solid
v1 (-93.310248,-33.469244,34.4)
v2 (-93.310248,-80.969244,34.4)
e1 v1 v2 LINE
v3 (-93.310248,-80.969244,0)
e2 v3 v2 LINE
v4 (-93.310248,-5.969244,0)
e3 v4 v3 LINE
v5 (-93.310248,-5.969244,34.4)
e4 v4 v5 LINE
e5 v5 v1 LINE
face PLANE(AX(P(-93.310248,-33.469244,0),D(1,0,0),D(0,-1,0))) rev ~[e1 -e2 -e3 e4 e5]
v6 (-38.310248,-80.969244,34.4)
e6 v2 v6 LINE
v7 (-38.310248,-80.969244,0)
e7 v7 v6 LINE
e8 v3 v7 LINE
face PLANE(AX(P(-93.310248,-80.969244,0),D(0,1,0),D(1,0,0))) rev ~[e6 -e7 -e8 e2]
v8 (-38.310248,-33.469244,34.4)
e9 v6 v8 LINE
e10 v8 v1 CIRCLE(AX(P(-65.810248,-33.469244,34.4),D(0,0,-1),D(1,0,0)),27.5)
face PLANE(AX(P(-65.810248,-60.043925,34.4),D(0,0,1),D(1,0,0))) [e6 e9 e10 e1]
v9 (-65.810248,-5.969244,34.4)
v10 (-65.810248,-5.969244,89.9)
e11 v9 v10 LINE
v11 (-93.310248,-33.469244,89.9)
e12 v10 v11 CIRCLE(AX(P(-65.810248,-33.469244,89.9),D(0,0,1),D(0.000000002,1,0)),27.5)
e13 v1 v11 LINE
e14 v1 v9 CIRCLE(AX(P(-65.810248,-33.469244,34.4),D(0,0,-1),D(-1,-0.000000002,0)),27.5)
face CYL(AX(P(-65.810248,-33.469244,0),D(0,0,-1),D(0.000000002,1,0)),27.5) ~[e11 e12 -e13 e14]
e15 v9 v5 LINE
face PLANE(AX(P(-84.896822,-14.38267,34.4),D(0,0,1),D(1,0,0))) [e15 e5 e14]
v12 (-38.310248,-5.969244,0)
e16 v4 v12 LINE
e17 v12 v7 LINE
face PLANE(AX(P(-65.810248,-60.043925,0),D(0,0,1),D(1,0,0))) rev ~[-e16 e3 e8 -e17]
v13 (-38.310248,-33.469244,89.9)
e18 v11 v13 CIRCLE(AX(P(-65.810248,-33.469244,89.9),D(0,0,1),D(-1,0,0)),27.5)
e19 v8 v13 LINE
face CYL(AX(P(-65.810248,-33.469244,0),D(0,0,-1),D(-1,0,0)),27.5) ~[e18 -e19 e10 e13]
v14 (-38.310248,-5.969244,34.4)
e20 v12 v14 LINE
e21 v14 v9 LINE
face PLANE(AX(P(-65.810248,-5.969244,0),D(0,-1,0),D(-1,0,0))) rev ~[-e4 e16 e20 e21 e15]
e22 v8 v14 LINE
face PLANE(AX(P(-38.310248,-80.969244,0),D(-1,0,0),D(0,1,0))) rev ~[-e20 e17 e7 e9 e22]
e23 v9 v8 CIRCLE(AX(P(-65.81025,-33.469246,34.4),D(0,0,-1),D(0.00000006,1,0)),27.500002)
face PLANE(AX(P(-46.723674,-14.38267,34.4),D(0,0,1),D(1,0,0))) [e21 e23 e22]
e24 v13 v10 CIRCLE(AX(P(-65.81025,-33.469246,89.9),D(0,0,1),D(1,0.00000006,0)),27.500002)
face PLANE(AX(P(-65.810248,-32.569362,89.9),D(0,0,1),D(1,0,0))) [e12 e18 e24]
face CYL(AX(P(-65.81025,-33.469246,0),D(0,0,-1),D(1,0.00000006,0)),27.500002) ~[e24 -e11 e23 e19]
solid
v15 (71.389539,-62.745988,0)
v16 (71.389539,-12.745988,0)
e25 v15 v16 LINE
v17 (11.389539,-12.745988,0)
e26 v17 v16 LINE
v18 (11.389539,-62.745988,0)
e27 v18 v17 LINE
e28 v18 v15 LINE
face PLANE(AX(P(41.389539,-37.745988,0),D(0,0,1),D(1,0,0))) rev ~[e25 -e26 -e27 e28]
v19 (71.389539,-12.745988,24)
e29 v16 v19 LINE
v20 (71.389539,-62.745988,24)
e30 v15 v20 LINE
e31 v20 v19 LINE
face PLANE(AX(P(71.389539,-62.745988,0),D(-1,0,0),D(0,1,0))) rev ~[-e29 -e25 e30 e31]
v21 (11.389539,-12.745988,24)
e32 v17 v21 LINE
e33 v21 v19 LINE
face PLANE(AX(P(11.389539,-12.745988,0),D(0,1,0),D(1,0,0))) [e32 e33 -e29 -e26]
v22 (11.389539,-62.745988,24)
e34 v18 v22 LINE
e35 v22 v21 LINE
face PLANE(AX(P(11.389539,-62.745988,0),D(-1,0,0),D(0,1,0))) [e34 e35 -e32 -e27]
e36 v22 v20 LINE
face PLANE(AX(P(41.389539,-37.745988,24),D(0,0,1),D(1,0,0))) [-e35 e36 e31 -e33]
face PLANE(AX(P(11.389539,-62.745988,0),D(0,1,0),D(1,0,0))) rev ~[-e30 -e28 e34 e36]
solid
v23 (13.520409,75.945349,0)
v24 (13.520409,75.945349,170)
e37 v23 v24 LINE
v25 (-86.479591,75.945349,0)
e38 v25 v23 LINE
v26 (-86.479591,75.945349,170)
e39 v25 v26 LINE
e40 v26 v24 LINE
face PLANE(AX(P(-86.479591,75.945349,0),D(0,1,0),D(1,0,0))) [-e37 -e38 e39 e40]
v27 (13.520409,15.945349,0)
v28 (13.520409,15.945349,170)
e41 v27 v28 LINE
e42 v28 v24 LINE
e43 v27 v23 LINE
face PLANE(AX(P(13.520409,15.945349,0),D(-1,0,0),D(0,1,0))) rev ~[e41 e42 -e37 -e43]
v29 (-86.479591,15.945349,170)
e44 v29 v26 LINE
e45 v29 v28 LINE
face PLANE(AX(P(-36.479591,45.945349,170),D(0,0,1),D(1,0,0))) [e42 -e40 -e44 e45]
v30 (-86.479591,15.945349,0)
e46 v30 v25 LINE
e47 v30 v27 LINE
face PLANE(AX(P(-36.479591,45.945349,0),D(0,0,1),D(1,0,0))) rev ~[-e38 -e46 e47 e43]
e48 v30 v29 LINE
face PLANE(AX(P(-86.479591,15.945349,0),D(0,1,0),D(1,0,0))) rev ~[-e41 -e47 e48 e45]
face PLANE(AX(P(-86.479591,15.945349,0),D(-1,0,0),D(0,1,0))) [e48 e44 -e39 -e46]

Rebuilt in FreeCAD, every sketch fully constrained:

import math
import FreeCAD as App
import Part
import Sketcher

V = App.Vector


def add_polygon(sketch, points):
    """Adds a closed chain of lines whose ends are joined by coincident constraints."""
    first, n = sketch.GeometryCount, len(points)
    for a, b in zip(points, points[1:] + points[:1]):
        sketch.addGeometry(Part.LineSegment(App.Vector(*a, 0), App.Vector(*b, 0)), False)
    for i in range(n):
        sketch.addConstraint(Sketcher.Constraint("Coincident", first + i, 2, first + (i + 1) % n, 1))

doc = App.newDocument("Part")
body = doc.addObject("PartDesign::Body", "Body")

# Sketch on XY plane
sketch1 = body.newObject("Sketcher::SketchObject", "Sketch")
sketch1.AttachmentSupport = (doc.getObject("XY_Plane"), [""])
sketch1.MapMode = "FlatFace"
add_polygon(sketch1, [(-86, 76), (-86, 16), (14, 16), (14, 76)])  # lines 0-3
sketch1.addConstraint(Sketcher.Constraint("Vertical", 0))
sketch1.addConstraint(Sketcher.Constraint("Horizontal", 1))
sketch1.addConstraint(Sketcher.Constraint("Vertical", 2))
sketch1.addConstraint(Sketcher.Constraint("Horizontal", 3))
sketch1.addConstraint(Sketcher.Constraint("DistanceX", 1, 1, 1, 2, 100.0))
sketch1.addConstraint(Sketcher.Constraint("DistanceY", 0, 2, 0, 1, 60.0))
sketch1.addConstraint(Sketcher.Constraint("DistanceX", 0, 2, -1, 1, 86.479591))
sketch1.addConstraint(Sketcher.Constraint("DistanceY", -1, 1, 0, 2, 15.945349))
pad1 = body.newObject("PartDesign::Pad", "Pad")
pad1.Profile = sketch1
pad1.Length = 170
body2 = doc.addObject("PartDesign::Body", "Body001")

# Sketch on XY plane
sketch2 = body2.newObject("Sketcher::SketchObject", "Sketch001")
sketch2.AttachmentSupport = (doc.getObject("XY_Plane001"), [""])
sketch2.MapMode = "FlatFace"
sketch2.addGeometry(Part.ArcOfCircle(Part.Circle(V(-66, -33, 0), V(0, 0, 1), 28), math.radians(0), math.radians(90)), False)
sketch2.addGeometry(Part.ArcOfCircle(Part.Circle(V(-66, -33, 0), V(0, 0, 1), 27), math.radians(90), math.radians(180)), False)
sketch2.addGeometry(Part.ArcOfCircle(Part.Circle(V(-66, -33, 0), V(0, 0, 1), 28), math.radians(180), math.radians(360)), False)
sketch2.addConstraint(Sketcher.Constraint("Tangent", 0, 2, 1, 1))
sketch2.addConstraint(Sketcher.Constraint("Tangent", 1, 2, 2, 1))
sketch2.addConstraint(Sketcher.Constraint("Tangent", 2, 2, 0, 1))
sketch2.addConstraint(Sketcher.Constraint("Horizontal", 2, 3, 1, 2))
sketch2.addConstraint(Sketcher.Constraint("Horizontal", 1, 2, 2, 2))
sketch2.addConstraint(Sketcher.Constraint("Vertical", 2, 3, 0, 2))
sketch2.addConstraint(Sketcher.Constraint("Radius", 0, 27.500002))
sketch2.addConstraint(Sketcher.Constraint("DistanceX", 0, 3, -1, 1, 65.81025))
sketch2.addConstraint(Sketcher.Constraint("DistanceY", 0, 3, -1, 1, 33.469246))
pad2 = body2.newObject("PartDesign::Pad", "Pad001")
pad2.Profile = sketch2
pad2.Length = 89.9

# Sketch on XY plane
sketch3 = body2.newObject("Sketcher::SketchObject", "Sketch002")
sketch3.AttachmentSupport = (doc.getObject("XY_Plane001"), [""])
sketch3.MapMode = "FlatFace"
sketch3.addGeometry(Part.ArcOfCircle(Part.Circle(V(-66, -33, 0), V(0, 0, 1), 28), math.radians(180), math.radians(360)), False)
sketch3.addGeometry(Part.LineSegment(V(-93, -33, 0), V(-93, -81, 0)), False)
sketch3.addGeometry(Part.LineSegment(V(-93, -81, 0), V(-38, -81, 0)), False)
sketch3.addGeometry(Part.LineSegment(V(-38, -81, 0), V(-38, -33, 0)), False)
sketch3.addGeometry(Part.LineSegment(V(-66, -6, 0), V(-93, -6, 0)), False)
sketch3.addGeometry(Part.LineSegment(V(-93, -6, 0), V(-93, -33, 0)), False)
sketch3.addGeometry(Part.ArcOfCircle(Part.Circle(V(-66, -33, 0), V(0, 0, 1), 27), math.radians(90), math.radians(180)), False)
sketch3.addGeometry(Part.LineSegment(V(-38, -6, 0), V(-66, -6, 0)), False)
sketch3.addGeometry(Part.ArcOfCircle(Part.Circle(V(-66, -33, 0), V(0, 0, 1), 28), math.radians(0), math.radians(90)), False)
sketch3.addGeometry(Part.LineSegment(V(-38, -33, 0), V(-38, -6, 0)), False)
sketch3.addConstraint(Sketcher.Constraint("Tangent", 0, 1, 1, 1))
sketch3.addConstraint(Sketcher.Constraint("Coincident", 1, 2, 2, 1))
sketch3.addConstraint(Sketcher.Constraint("Coincident", 2, 2, 3, 1))
sketch3.addConstraint(Sketcher.Constraint("Tangent", 3, 2, 0, 2))
sketch3.addConstraint(Sketcher.Constraint("Coincident", 4, 2, 5, 1))
sketch3.addConstraint(Sketcher.Constraint("Tangent", 5, 2, 6, 2))
sketch3.addConstraint(Sketcher.Constraint("Tangent", 6, 1, 4, 1))
sketch3.addConstraint(Sketcher.Constraint("Tangent", 7, 2, 8, 2))
sketch3.addConstraint(Sketcher.Constraint("Tangent", 8, 1, 9, 1))
sketch3.addConstraint(Sketcher.Constraint("Coincident", 9, 2, 7, 1))
sketch3.addConstraint(Sketcher.Constraint("Vertical", 1))
sketch3.addConstraint(Sketcher.Constraint("Horizontal", 2))
sketch3.addConstraint(Sketcher.Constraint("Vertical", 3))
sketch3.addConstraint(Sketcher.Constraint("Horizontal", 4))
sketch3.addConstraint(Sketcher.Constraint("Vertical", 5))
sketch3.addConstraint(Sketcher.Constraint("Horizontal", 7))
sketch3.addConstraint(Sketcher.Constraint("Vertical", 9))
sketch3.addConstraint(Sketcher.Constraint("Coincident", 6, 3, 0, 3))
sketch3.addConstraint(Sketcher.Constraint("Coincident", 8, 3, 0, 3))
sketch3.addConstraint(Sketcher.Constraint("Equal", 0, 6))
sketch3.addConstraint(Sketcher.Constraint("Equal", 6, 8))
sketch3.addConstraint(Sketcher.Constraint("Radius", 0, 27.5))
sketch3.addConstraint(Sketcher.Constraint("DistanceY", 1, 2, 1, 1, 47.5))
sketch3.addConstraint(Sketcher.Constraint("DistanceX", 0, 3, -1, 1, 65.810248))
sketch3.addConstraint(Sketcher.Constraint("DistanceY", 0, 3, -1, 1, 33.469244))
pad3 = body2.newObject("PartDesign::Pad", "Pad002")
pad3.Profile = sketch3
pad3.Length = 34.4
body3 = doc.addObject("PartDesign::Body", "Body002")

# Sketch on XY plane
sketch4 = body3.newObject("Sketcher::SketchObject", "Sketch003")
sketch4.AttachmentSupport = (doc.getObject("XY_Plane002"), [""])
sketch4.MapMode = "FlatFace"
add_polygon(sketch4, [(11, -13), (11, -63), (71, -63), (71, -13)])  # lines 0-3
sketch4.addConstraint(Sketcher.Constraint("Vertical", 0))
sketch4.addConstraint(Sketcher.Constraint("Horizontal", 1))
sketch4.addConstraint(Sketcher.Constraint("Vertical", 2))
sketch4.addConstraint(Sketcher.Constraint("Horizontal", 3))
sketch4.addConstraint(Sketcher.Constraint("DistanceX", 1, 1, 1, 2, 60.0))
sketch4.addConstraint(Sketcher.Constraint("DistanceY", 0, 2, 0, 1, 50.0))
sketch4.addConstraint(Sketcher.Constraint("DistanceX", -1, 1, 0, 2, 11.389539))
sketch4.addConstraint(Sketcher.Constraint("DistanceY", 0, 2, -1, 1, 62.745988))
pad4 = body3.newObject("PartDesign::Pad", "Pad003")
pad4.Profile = sketch4
pad4.Length = 24

doc.recompute()
